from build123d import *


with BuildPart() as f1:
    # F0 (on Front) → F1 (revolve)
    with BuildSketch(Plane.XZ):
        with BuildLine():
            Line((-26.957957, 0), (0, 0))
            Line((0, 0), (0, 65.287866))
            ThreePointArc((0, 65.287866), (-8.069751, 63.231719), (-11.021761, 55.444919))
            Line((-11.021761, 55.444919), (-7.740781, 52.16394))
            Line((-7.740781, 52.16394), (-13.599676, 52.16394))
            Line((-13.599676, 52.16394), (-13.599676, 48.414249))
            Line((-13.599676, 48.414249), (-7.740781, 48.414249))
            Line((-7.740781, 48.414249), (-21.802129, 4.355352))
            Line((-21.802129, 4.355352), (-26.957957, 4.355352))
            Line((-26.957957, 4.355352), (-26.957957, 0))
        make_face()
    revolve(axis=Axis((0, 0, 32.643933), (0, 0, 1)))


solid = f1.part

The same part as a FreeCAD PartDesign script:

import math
import FreeCAD as App
import Part
import Sketcher
from FreeCAD import Vector
Q = App.Units.Quantity

doc = App.newDocument("Part")
body = doc.addObject("PartDesign::Body", "Body")

sketch1 = body.newObject("Sketcher::SketchObject", "Sketch")
sketch1.AttachmentSupport = (doc.getObject("XZ_Plane"), [""])
sketch1.MapMode = "FlatFace"
sketch1.addGeometry([
    Part.LineSegment(Vector(-27, 0, 0), Vector(0, 0, 0)),
    Part.LineSegment(Vector(0, 0, 0), Vector(0, 65.3, 0)),
    Part.ArcOfCircle(Part.Circle(Vector(-2.1, 56.5, 0), Vector(0, 0, 1), 9), math.radians(77), math.radians(187)),
    Part.LineSegment(Vector(-11, 55.4, 0), Vector(-7.7, 52.2, 0)),
    Part.LineSegment(Vector(-7.7, 52.2, 0), Vector(-13.6, 52.2, 0)),
    Part.LineSegment(Vector(-13.6, 52.2, 0), Vector(-13.6, 48.4, 0)),
    Part.LineSegment(Vector(-13.6, 48.4, 0), Vector(-7.7, 48.4, 0)),
    Part.LineSegment(Vector(-7.7, 48.4, 0), Vector(-21.8, 4.4, 0)),
    Part.LineSegment(Vector(-21.8, 4.4, 0), Vector(-27, 4.4, 0)),
    Part.LineSegment(Vector(-27, 4.4, 0), Vector(-27, 0, 0)),
], False)
sketch1.addConstraint([
    Sketcher.Constraint("Coincident", 0, 2, 1, 1),
    Sketcher.Constraint("Coincident", 1, 2, 2, 1),
    Sketcher.Constraint("Coincident", 2, 2, 3, 1),
    Sketcher.Constraint("Coincident", 3, 2, 4, 1),
    Sketcher.Constraint("Coincident", 4, 2, 5, 1),
    Sketcher.Constraint("Coincident", 5, 2, 6, 1),
    Sketcher.Constraint("Coincident", 6, 2, 7, 1),
    Sketcher.Constraint("Coincident", 7, 2, 8, 1),
    Sketcher.Constraint("Coincident", 8, 2, 9, 1),
    Sketcher.Constraint("Coincident", 9, 2, 0, 1),
    Sketcher.Constraint("Horizontal", 0),
    Sketcher.Constraint("Vertical", 1),
    Sketcher.Constraint("Horizontal", 4),
    Sketcher.Constraint("Vertical", 5),
    Sketcher.Constraint("Horizontal", 6),
    Sketcher.Constraint("Horizontal", 8),
    Sketcher.Constraint("Vertical", 9),
    Sketcher.Constraint("Coincident", 0, 2, -1, 1),
    Sketcher.Constraint("Vertical", 3, 2, 6, 2),
    Sketcher.Constraint("Angle", 3, Q("-44.999991 deg")),
    Sketcher.Constraint("Radius", 2, Q("9.026 mm")),
    Sketcher.Constraint("DistanceY", 5, 2, 5, 1, Q("3.749691 mm")),
    Sketcher.Constraint("DistanceY", 2, 2, 2, 3, Q("1.054601 mm")),
    Sketcher.Constraint("DistanceX", 3, 2, 2, 3, Q("5.683198 mm")),
    Sketcher.Constraint("Distance", 7, Q("46.248329 mm")),
    Sketcher.Constraint("DistanceX", 0, 1, 0, 2, Q("26.957957 mm")),
    Sketcher.Constraint("DistanceX", 4, 2, 4, 1, Q("5.858895 mm")),
    Sketcher.Constraint("DistanceX", 8, 2, 8, 1, Q("5.155828 mm")),
    Sketcher.Constraint("DistanceY", 1, 1, 1, 2, Q("65.287866 mm")),
    Sketcher.Constraint("DistanceY", 9, 2, 9, 1, Q("4.355352 mm")),
])
revolution = body.newObject("PartDesign::Revolution", "Revolution")
revolution.Profile = sketch1
revolution.ReferenceAxis = (sketch1, ["V_Axis"])
revolution.Angle = 360

doc.recompute()
